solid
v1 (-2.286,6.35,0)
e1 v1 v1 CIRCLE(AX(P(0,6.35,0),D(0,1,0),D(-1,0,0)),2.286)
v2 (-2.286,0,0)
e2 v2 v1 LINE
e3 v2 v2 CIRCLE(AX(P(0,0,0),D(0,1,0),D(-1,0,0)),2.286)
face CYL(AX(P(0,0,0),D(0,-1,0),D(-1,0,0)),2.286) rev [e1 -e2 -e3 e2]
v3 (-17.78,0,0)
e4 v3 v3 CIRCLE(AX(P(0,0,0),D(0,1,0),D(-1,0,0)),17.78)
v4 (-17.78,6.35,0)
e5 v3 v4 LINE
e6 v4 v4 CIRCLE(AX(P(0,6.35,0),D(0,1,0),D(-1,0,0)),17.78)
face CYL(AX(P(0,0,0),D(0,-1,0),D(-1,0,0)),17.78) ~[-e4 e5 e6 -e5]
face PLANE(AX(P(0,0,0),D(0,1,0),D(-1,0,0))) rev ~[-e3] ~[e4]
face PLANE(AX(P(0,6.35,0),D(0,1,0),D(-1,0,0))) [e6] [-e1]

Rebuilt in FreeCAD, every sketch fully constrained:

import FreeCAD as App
import Part
import Sketcher

V = App.Vector
Q = App.Units.Quantity

doc = App.newDocument("Part")
params = doc.addObject("Spreadsheet::Sheet", "Params")
for row, (alias, value) in enumerate([
    ("sketch1_diameter", "1.4 in"),
    ("sketch1_diameter2", "0.18 in"),
    ("pad1_length", "0.25 in"),
], start=1):
    params.set(f"A{row}", alias)
    params.set(f"B{row}", "=" + value)
    params.setAlias(f"B{row}", alias)

body = doc.addObject("PartDesign::Body", "Body")

# Sketch on XZ plane
sketch1 = doc.addObject("Sketcher::SketchObject", "Sketch")
body.addObject(sketch1)
sketch1.AttachmentSupport = (doc.XZ_Plane, [""])
sketch1.MapMode = "FlatFace"
sketch1.addGeometry(Part.Circle(V(0, 0, 0), V(0, 0, 1), 17.8), False)
sketch1.addGeometry(Part.Circle(V(0, 0, 0), V(0, 0, 1), 2.3), False)
sketch1.addConstraint(Sketcher.Constraint("Coincident", 0, 3, -1, 1))
sketch1.addConstraint(Sketcher.Constraint("Coincident", 1, 3, -1, 1))
sketch1.addConstraint(Sketcher.Constraint("Diameter", 0, Q("1.4 in")))
sketch1.addConstraint(Sketcher.Constraint("Diameter", 1, Q("0.18 in")))
sketch1.setExpression("Constraints[2]", "Params.sketch1_diameter")
sketch1.setExpression("Constraints[3]", "Params.sketch1_diameter2")
pad1 = doc.addObject("PartDesign::Pad", "Pad")
body.addObject(pad1)
pad1.Profile = sketch1
pad1.setExpression("Length", "Params.pad1_length")
pad1.Reversed = True

doc.recompute()
